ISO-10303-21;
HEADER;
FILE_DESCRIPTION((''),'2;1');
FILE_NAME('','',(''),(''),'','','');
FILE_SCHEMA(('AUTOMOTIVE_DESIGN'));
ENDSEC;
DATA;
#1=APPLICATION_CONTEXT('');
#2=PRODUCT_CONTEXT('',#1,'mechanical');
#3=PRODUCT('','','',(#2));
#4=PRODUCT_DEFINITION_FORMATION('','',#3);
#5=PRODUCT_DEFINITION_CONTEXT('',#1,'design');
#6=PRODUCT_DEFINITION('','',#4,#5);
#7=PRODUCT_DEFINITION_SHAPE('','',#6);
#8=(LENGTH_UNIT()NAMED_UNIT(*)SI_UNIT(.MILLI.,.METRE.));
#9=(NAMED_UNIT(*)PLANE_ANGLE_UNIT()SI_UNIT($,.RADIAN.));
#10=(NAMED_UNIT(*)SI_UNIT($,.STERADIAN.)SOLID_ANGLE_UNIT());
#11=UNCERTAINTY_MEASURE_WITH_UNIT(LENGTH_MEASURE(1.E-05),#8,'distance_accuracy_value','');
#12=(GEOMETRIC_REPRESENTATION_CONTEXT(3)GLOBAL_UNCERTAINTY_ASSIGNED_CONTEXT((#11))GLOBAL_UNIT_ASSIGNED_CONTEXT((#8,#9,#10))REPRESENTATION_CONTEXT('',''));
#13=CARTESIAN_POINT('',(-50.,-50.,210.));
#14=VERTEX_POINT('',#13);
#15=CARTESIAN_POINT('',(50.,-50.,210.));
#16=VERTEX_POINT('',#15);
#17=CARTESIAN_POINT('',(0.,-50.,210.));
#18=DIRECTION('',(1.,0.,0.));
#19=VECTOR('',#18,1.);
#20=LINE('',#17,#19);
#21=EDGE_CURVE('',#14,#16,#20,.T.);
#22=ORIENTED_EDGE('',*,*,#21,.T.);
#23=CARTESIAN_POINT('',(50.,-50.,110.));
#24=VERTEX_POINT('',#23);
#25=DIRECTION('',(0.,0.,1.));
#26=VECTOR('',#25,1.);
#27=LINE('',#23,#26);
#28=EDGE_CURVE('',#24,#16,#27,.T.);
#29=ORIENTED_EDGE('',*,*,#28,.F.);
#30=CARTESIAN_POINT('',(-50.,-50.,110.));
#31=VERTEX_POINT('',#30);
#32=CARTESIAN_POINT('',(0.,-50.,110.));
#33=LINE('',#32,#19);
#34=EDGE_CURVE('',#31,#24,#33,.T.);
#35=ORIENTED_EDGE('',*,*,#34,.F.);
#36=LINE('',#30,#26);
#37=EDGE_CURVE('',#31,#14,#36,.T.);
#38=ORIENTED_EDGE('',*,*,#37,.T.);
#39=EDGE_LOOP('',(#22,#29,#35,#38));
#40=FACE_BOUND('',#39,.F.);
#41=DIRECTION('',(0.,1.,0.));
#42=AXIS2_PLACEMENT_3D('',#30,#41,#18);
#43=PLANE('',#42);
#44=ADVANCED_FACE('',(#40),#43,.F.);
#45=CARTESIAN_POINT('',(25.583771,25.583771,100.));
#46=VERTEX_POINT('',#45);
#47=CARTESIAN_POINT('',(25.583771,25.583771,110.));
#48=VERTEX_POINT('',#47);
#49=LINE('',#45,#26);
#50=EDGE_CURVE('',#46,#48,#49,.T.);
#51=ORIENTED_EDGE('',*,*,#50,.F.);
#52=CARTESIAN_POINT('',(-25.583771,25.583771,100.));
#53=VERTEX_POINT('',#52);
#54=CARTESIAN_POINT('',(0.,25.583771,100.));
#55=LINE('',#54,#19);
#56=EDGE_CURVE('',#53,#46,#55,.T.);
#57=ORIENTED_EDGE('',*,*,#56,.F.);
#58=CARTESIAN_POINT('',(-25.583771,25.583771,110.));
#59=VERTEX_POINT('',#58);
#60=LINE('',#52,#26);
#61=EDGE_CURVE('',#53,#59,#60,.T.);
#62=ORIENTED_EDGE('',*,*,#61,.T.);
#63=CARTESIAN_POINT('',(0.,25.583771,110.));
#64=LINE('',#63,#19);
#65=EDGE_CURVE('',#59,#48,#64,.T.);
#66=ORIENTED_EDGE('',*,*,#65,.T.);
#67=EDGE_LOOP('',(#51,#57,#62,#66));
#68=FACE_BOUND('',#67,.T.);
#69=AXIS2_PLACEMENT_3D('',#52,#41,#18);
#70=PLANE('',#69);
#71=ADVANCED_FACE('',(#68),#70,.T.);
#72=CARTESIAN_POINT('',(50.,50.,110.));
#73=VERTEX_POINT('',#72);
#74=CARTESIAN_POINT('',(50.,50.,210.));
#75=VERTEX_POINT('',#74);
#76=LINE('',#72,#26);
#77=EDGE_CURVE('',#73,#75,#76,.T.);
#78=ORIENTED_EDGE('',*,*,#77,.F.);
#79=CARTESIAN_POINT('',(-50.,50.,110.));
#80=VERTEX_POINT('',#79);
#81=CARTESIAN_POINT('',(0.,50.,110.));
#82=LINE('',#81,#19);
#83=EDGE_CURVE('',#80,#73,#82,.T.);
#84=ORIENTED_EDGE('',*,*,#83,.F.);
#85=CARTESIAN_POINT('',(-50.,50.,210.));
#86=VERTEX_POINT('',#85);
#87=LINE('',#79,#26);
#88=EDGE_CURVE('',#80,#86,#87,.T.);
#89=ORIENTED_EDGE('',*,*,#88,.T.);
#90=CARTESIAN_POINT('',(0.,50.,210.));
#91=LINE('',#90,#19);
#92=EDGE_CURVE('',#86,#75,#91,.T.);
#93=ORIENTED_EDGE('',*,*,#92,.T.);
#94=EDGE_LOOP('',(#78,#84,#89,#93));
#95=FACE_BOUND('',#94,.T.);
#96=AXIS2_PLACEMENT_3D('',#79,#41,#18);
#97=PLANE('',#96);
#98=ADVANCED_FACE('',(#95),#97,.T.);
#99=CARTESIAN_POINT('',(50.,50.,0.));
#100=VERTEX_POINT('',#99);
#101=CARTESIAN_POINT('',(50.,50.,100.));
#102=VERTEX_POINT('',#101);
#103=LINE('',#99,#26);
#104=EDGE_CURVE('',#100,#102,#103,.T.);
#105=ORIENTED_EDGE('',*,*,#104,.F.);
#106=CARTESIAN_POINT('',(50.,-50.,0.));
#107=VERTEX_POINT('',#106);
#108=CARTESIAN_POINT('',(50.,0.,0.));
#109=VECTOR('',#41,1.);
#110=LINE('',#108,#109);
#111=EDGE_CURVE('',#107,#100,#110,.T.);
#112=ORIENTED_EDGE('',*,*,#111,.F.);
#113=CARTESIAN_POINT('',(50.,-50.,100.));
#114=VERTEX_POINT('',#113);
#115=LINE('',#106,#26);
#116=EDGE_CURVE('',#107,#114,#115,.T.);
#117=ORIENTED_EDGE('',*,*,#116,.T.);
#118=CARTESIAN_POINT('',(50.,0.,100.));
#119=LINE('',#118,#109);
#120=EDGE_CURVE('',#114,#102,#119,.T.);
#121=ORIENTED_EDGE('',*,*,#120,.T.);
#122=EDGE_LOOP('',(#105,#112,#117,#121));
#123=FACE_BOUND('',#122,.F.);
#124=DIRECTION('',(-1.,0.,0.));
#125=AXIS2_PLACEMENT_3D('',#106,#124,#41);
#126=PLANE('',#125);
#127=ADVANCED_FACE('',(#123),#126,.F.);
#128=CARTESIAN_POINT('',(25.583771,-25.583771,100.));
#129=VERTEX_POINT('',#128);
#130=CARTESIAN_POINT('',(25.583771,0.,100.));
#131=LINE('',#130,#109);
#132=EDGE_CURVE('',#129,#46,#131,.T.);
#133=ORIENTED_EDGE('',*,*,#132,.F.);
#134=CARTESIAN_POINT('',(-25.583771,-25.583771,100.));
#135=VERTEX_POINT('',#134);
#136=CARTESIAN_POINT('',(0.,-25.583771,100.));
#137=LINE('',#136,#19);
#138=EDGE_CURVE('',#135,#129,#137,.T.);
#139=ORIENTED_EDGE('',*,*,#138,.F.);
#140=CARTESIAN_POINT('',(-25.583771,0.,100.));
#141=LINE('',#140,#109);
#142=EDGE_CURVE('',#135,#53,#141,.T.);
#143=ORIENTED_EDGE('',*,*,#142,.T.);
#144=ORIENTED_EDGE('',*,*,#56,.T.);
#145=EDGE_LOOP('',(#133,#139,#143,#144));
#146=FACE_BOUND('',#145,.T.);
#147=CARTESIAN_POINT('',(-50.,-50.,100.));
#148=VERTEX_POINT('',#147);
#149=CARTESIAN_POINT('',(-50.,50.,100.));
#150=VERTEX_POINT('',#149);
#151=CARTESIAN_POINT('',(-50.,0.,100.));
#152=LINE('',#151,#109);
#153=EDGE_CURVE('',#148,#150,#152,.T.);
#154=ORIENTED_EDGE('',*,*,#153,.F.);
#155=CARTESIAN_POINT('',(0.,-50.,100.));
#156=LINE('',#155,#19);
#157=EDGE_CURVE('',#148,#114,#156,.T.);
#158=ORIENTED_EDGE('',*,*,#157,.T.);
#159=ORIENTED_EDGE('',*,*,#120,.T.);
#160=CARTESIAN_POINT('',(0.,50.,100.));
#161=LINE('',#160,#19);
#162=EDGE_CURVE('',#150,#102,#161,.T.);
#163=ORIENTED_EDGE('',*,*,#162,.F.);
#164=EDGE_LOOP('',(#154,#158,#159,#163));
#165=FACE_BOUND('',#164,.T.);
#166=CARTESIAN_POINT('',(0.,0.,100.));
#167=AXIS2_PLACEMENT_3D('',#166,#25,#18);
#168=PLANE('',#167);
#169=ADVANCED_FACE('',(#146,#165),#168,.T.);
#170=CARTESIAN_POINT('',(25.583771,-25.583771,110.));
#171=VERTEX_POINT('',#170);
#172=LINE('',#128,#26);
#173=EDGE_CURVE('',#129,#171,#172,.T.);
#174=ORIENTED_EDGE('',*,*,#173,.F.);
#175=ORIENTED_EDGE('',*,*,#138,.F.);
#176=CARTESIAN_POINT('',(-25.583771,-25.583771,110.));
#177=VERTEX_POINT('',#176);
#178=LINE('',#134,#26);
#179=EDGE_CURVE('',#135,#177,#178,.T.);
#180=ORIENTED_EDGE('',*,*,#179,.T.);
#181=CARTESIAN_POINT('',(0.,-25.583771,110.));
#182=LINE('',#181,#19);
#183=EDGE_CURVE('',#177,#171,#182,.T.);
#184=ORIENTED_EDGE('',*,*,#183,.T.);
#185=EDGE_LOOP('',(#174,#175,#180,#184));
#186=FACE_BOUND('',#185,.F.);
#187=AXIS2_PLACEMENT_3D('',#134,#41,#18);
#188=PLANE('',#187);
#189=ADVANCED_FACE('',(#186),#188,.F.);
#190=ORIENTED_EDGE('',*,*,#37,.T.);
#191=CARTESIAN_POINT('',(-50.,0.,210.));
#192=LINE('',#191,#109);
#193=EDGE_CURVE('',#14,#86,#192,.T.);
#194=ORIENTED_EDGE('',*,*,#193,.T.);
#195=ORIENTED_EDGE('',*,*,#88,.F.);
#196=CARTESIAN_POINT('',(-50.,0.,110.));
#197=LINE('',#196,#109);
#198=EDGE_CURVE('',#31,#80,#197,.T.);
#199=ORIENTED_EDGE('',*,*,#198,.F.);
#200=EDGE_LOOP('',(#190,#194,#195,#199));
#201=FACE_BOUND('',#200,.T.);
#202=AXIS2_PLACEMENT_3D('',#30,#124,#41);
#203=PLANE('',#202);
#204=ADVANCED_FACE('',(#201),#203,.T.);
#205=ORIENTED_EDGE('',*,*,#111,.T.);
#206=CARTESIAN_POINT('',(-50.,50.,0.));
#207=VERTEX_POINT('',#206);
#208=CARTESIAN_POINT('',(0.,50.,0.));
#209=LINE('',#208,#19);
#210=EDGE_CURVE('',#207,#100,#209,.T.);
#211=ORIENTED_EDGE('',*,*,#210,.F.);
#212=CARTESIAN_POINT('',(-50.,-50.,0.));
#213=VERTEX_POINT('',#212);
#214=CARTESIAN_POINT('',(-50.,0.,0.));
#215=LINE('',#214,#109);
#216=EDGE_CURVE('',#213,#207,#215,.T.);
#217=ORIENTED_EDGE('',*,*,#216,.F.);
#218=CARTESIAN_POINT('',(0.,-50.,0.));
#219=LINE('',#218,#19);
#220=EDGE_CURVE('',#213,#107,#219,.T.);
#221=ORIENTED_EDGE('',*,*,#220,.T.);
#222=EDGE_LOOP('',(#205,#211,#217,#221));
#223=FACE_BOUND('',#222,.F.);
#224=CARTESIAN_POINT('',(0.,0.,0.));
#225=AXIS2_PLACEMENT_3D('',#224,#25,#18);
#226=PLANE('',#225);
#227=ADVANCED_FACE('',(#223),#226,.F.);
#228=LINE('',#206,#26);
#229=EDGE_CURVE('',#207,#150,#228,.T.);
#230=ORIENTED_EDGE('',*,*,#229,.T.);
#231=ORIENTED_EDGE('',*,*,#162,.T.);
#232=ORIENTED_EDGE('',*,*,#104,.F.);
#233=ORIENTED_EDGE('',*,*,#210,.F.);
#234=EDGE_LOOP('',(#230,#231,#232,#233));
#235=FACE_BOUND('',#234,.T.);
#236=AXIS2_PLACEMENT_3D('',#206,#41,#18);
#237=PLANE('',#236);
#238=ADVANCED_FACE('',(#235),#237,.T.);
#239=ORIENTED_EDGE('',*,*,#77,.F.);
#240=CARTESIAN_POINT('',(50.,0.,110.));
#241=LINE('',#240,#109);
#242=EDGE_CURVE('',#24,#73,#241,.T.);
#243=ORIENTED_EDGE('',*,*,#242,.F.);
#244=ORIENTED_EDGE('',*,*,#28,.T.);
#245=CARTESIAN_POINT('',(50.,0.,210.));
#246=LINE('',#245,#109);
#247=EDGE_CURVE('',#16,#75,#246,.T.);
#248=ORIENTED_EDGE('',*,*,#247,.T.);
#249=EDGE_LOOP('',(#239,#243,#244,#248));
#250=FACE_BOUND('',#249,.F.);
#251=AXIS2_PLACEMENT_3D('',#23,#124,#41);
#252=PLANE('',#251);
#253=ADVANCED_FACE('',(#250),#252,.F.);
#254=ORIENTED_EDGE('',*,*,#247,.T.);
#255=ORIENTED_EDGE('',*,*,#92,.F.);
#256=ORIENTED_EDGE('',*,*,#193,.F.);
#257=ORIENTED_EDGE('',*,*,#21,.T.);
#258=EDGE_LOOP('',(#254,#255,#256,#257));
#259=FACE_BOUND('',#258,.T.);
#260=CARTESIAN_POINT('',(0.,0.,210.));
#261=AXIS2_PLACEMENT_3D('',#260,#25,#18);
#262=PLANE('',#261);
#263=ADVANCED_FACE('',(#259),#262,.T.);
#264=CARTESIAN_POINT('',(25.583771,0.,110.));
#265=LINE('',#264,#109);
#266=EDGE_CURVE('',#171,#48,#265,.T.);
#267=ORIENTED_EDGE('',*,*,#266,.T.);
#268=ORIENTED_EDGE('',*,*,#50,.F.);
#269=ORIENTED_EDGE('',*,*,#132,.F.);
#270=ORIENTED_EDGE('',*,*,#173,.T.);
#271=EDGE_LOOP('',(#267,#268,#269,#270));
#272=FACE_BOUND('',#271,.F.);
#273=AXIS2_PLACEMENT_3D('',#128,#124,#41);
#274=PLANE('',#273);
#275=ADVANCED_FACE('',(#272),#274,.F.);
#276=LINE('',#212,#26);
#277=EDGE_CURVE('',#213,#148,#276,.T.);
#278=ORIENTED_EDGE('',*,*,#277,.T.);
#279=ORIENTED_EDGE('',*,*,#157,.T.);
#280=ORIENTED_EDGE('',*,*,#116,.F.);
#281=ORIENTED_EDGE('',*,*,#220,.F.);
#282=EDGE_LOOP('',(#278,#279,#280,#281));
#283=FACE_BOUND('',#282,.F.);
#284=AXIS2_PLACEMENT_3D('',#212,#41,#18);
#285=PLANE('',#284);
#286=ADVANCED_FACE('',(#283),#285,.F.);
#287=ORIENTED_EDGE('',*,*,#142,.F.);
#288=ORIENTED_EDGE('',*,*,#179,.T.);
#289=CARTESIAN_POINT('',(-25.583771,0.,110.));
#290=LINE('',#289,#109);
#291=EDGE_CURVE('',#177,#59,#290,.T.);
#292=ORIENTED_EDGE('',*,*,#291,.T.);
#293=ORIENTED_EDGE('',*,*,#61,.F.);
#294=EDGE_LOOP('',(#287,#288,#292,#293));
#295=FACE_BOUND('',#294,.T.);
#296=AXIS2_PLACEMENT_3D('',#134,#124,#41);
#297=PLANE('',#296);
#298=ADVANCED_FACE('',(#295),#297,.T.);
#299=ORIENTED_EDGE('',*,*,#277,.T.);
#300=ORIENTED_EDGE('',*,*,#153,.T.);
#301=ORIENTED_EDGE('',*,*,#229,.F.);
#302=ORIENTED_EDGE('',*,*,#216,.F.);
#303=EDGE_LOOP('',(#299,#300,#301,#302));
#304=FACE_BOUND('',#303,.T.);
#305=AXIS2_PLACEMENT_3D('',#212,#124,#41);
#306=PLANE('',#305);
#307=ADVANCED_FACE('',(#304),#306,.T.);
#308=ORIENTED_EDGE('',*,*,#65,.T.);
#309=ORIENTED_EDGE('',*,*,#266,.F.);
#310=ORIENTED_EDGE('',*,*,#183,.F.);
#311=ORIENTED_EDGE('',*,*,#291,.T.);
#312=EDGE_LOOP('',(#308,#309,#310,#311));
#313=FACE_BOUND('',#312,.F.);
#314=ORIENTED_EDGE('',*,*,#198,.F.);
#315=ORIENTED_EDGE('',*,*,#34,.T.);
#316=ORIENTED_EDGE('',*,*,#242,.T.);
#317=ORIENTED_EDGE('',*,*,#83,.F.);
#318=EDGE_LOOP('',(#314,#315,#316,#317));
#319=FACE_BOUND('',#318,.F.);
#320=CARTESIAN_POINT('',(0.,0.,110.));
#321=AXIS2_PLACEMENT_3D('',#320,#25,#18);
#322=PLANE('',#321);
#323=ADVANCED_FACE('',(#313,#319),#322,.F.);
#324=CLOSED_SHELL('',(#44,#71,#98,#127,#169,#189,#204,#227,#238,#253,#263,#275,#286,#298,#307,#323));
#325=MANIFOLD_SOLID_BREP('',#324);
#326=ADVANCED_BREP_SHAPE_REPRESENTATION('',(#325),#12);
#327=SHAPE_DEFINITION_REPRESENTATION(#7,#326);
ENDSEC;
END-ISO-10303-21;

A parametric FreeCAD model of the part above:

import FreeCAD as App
import Part
import Sketcher

V = App.Vector
Q = App.Units.Quantity


def add_polygon(sketch, points):
    """Adds a closed chain of lines whose ends are joined by coincident constraints."""
    first, n = sketch.GeometryCount, len(points)
    for a, b in zip(points, points[1:] + points[:1]):
        sketch.addGeometry(Part.LineSegment(App.Vector(*a, 0), App.Vector(*b, 0)), False)
    for i in range(n):
        sketch.addConstraint(Sketcher.Constraint("Coincident", first + i, 2, first + (i + 1) % n, 1))

doc = App.newDocument("Part")
body = doc.addObject("PartDesign::Body", "Body")

# Sketch on XY plane
sketch1 = body.newObject("Sketcher::SketchObject", "Sketch")
sketch1.AttachmentSupport = (doc.getObject("XY_Plane"), [""])
sketch1.MapMode = "FlatFace"
add_polygon(sketch1, [(-50, 50), (-50, -50), (50, -50), (50, 50)])  # lines 0-3
sketch1.addConstraint([
    Sketcher.Constraint("Vertical", 0),
    Sketcher.Constraint("Horizontal", 1),
    Sketcher.Constraint("Vertical", 2),
    Sketcher.Constraint("Horizontal", 3),
    Sketcher.Constraint("Symmetric", 0, 2, 2, 2, -1, 1),
    Sketcher.Constraint("Equal", 3, 0),
    Sketcher.Constraint("DistanceX", 1, 1, 1, 2, Q("100 mm")),
])
pad1 = body.newObject("PartDesign::Pad", "Pad")
pad1.Profile = sketch1
pad1.Length = 100

# Sketch on XY plane
sketch2 = body.newObject("Sketcher::SketchObject", "Sketch001")
sketch2.AttachmentSupport = (doc.getObject("XY_Plane"), [""])
sketch2.MapMode = "FlatFace"
sketch2.AttachmentOffset = App.Placement(V(0, 0, 100), App.Rotation())
add_polygon(sketch2, [(-26, 26), (-26, -26), (26, -26), (26, 26)])  # lines 0-3
sketch2.addConstraint([
    Sketcher.Constraint("Vertical", 0),
    Sketcher.Constraint("Horizontal", 1),
    Sketcher.Constraint("Vertical", 2),
    Sketcher.Constraint("Horizontal", 3),
    Sketcher.Constraint("Symmetric", 0, 2, 2, 2, -1, 1),
    Sketcher.Constraint("Equal", 3, 0),
    Sketcher.Constraint("DistanceX", 1, 1, 1, 2, Q("51.167542 mm")),
])
pad2 = body.newObject("PartDesign::Pad", "Pad001")
pad2.Profile = sketch2
pad2.Length = 10

# Sketch on XY plane
sketch3 = body.newObject("Sketcher::SketchObject", "Sketch002")
sketch3.AttachmentSupport = (doc.getObject("XY_Plane"), [""])
sketch3.MapMode = "FlatFace"
sketch3.AttachmentOffset = App.Placement(V(0, 0, 110), App.Rotation())
add_polygon(sketch3, [(-50, 50), (-50, -50), (50, -50), (50, 50)])  # lines 0-3
sketch3.addConstraint([
    Sketcher.Constraint("Vertical", 0),
    Sketcher.Constraint("Horizontal", 1),
    Sketcher.Constraint("Vertical", 2),
    Sketcher.Constraint("Horizontal", 3),
    Sketcher.Constraint("Symmetric", 0, 2, 2, 2, -1, 1),
    Sketcher.Constraint("Equal", 3, 0),
    Sketcher.Constraint("DistanceX", 1, 1, 1, 2, Q("100 mm")),
])
pad3 = body.newObject("PartDesign::Pad", "Pad002")
pad3.Profile = sketch3
pad3.Length = 100

doc.recompute()
